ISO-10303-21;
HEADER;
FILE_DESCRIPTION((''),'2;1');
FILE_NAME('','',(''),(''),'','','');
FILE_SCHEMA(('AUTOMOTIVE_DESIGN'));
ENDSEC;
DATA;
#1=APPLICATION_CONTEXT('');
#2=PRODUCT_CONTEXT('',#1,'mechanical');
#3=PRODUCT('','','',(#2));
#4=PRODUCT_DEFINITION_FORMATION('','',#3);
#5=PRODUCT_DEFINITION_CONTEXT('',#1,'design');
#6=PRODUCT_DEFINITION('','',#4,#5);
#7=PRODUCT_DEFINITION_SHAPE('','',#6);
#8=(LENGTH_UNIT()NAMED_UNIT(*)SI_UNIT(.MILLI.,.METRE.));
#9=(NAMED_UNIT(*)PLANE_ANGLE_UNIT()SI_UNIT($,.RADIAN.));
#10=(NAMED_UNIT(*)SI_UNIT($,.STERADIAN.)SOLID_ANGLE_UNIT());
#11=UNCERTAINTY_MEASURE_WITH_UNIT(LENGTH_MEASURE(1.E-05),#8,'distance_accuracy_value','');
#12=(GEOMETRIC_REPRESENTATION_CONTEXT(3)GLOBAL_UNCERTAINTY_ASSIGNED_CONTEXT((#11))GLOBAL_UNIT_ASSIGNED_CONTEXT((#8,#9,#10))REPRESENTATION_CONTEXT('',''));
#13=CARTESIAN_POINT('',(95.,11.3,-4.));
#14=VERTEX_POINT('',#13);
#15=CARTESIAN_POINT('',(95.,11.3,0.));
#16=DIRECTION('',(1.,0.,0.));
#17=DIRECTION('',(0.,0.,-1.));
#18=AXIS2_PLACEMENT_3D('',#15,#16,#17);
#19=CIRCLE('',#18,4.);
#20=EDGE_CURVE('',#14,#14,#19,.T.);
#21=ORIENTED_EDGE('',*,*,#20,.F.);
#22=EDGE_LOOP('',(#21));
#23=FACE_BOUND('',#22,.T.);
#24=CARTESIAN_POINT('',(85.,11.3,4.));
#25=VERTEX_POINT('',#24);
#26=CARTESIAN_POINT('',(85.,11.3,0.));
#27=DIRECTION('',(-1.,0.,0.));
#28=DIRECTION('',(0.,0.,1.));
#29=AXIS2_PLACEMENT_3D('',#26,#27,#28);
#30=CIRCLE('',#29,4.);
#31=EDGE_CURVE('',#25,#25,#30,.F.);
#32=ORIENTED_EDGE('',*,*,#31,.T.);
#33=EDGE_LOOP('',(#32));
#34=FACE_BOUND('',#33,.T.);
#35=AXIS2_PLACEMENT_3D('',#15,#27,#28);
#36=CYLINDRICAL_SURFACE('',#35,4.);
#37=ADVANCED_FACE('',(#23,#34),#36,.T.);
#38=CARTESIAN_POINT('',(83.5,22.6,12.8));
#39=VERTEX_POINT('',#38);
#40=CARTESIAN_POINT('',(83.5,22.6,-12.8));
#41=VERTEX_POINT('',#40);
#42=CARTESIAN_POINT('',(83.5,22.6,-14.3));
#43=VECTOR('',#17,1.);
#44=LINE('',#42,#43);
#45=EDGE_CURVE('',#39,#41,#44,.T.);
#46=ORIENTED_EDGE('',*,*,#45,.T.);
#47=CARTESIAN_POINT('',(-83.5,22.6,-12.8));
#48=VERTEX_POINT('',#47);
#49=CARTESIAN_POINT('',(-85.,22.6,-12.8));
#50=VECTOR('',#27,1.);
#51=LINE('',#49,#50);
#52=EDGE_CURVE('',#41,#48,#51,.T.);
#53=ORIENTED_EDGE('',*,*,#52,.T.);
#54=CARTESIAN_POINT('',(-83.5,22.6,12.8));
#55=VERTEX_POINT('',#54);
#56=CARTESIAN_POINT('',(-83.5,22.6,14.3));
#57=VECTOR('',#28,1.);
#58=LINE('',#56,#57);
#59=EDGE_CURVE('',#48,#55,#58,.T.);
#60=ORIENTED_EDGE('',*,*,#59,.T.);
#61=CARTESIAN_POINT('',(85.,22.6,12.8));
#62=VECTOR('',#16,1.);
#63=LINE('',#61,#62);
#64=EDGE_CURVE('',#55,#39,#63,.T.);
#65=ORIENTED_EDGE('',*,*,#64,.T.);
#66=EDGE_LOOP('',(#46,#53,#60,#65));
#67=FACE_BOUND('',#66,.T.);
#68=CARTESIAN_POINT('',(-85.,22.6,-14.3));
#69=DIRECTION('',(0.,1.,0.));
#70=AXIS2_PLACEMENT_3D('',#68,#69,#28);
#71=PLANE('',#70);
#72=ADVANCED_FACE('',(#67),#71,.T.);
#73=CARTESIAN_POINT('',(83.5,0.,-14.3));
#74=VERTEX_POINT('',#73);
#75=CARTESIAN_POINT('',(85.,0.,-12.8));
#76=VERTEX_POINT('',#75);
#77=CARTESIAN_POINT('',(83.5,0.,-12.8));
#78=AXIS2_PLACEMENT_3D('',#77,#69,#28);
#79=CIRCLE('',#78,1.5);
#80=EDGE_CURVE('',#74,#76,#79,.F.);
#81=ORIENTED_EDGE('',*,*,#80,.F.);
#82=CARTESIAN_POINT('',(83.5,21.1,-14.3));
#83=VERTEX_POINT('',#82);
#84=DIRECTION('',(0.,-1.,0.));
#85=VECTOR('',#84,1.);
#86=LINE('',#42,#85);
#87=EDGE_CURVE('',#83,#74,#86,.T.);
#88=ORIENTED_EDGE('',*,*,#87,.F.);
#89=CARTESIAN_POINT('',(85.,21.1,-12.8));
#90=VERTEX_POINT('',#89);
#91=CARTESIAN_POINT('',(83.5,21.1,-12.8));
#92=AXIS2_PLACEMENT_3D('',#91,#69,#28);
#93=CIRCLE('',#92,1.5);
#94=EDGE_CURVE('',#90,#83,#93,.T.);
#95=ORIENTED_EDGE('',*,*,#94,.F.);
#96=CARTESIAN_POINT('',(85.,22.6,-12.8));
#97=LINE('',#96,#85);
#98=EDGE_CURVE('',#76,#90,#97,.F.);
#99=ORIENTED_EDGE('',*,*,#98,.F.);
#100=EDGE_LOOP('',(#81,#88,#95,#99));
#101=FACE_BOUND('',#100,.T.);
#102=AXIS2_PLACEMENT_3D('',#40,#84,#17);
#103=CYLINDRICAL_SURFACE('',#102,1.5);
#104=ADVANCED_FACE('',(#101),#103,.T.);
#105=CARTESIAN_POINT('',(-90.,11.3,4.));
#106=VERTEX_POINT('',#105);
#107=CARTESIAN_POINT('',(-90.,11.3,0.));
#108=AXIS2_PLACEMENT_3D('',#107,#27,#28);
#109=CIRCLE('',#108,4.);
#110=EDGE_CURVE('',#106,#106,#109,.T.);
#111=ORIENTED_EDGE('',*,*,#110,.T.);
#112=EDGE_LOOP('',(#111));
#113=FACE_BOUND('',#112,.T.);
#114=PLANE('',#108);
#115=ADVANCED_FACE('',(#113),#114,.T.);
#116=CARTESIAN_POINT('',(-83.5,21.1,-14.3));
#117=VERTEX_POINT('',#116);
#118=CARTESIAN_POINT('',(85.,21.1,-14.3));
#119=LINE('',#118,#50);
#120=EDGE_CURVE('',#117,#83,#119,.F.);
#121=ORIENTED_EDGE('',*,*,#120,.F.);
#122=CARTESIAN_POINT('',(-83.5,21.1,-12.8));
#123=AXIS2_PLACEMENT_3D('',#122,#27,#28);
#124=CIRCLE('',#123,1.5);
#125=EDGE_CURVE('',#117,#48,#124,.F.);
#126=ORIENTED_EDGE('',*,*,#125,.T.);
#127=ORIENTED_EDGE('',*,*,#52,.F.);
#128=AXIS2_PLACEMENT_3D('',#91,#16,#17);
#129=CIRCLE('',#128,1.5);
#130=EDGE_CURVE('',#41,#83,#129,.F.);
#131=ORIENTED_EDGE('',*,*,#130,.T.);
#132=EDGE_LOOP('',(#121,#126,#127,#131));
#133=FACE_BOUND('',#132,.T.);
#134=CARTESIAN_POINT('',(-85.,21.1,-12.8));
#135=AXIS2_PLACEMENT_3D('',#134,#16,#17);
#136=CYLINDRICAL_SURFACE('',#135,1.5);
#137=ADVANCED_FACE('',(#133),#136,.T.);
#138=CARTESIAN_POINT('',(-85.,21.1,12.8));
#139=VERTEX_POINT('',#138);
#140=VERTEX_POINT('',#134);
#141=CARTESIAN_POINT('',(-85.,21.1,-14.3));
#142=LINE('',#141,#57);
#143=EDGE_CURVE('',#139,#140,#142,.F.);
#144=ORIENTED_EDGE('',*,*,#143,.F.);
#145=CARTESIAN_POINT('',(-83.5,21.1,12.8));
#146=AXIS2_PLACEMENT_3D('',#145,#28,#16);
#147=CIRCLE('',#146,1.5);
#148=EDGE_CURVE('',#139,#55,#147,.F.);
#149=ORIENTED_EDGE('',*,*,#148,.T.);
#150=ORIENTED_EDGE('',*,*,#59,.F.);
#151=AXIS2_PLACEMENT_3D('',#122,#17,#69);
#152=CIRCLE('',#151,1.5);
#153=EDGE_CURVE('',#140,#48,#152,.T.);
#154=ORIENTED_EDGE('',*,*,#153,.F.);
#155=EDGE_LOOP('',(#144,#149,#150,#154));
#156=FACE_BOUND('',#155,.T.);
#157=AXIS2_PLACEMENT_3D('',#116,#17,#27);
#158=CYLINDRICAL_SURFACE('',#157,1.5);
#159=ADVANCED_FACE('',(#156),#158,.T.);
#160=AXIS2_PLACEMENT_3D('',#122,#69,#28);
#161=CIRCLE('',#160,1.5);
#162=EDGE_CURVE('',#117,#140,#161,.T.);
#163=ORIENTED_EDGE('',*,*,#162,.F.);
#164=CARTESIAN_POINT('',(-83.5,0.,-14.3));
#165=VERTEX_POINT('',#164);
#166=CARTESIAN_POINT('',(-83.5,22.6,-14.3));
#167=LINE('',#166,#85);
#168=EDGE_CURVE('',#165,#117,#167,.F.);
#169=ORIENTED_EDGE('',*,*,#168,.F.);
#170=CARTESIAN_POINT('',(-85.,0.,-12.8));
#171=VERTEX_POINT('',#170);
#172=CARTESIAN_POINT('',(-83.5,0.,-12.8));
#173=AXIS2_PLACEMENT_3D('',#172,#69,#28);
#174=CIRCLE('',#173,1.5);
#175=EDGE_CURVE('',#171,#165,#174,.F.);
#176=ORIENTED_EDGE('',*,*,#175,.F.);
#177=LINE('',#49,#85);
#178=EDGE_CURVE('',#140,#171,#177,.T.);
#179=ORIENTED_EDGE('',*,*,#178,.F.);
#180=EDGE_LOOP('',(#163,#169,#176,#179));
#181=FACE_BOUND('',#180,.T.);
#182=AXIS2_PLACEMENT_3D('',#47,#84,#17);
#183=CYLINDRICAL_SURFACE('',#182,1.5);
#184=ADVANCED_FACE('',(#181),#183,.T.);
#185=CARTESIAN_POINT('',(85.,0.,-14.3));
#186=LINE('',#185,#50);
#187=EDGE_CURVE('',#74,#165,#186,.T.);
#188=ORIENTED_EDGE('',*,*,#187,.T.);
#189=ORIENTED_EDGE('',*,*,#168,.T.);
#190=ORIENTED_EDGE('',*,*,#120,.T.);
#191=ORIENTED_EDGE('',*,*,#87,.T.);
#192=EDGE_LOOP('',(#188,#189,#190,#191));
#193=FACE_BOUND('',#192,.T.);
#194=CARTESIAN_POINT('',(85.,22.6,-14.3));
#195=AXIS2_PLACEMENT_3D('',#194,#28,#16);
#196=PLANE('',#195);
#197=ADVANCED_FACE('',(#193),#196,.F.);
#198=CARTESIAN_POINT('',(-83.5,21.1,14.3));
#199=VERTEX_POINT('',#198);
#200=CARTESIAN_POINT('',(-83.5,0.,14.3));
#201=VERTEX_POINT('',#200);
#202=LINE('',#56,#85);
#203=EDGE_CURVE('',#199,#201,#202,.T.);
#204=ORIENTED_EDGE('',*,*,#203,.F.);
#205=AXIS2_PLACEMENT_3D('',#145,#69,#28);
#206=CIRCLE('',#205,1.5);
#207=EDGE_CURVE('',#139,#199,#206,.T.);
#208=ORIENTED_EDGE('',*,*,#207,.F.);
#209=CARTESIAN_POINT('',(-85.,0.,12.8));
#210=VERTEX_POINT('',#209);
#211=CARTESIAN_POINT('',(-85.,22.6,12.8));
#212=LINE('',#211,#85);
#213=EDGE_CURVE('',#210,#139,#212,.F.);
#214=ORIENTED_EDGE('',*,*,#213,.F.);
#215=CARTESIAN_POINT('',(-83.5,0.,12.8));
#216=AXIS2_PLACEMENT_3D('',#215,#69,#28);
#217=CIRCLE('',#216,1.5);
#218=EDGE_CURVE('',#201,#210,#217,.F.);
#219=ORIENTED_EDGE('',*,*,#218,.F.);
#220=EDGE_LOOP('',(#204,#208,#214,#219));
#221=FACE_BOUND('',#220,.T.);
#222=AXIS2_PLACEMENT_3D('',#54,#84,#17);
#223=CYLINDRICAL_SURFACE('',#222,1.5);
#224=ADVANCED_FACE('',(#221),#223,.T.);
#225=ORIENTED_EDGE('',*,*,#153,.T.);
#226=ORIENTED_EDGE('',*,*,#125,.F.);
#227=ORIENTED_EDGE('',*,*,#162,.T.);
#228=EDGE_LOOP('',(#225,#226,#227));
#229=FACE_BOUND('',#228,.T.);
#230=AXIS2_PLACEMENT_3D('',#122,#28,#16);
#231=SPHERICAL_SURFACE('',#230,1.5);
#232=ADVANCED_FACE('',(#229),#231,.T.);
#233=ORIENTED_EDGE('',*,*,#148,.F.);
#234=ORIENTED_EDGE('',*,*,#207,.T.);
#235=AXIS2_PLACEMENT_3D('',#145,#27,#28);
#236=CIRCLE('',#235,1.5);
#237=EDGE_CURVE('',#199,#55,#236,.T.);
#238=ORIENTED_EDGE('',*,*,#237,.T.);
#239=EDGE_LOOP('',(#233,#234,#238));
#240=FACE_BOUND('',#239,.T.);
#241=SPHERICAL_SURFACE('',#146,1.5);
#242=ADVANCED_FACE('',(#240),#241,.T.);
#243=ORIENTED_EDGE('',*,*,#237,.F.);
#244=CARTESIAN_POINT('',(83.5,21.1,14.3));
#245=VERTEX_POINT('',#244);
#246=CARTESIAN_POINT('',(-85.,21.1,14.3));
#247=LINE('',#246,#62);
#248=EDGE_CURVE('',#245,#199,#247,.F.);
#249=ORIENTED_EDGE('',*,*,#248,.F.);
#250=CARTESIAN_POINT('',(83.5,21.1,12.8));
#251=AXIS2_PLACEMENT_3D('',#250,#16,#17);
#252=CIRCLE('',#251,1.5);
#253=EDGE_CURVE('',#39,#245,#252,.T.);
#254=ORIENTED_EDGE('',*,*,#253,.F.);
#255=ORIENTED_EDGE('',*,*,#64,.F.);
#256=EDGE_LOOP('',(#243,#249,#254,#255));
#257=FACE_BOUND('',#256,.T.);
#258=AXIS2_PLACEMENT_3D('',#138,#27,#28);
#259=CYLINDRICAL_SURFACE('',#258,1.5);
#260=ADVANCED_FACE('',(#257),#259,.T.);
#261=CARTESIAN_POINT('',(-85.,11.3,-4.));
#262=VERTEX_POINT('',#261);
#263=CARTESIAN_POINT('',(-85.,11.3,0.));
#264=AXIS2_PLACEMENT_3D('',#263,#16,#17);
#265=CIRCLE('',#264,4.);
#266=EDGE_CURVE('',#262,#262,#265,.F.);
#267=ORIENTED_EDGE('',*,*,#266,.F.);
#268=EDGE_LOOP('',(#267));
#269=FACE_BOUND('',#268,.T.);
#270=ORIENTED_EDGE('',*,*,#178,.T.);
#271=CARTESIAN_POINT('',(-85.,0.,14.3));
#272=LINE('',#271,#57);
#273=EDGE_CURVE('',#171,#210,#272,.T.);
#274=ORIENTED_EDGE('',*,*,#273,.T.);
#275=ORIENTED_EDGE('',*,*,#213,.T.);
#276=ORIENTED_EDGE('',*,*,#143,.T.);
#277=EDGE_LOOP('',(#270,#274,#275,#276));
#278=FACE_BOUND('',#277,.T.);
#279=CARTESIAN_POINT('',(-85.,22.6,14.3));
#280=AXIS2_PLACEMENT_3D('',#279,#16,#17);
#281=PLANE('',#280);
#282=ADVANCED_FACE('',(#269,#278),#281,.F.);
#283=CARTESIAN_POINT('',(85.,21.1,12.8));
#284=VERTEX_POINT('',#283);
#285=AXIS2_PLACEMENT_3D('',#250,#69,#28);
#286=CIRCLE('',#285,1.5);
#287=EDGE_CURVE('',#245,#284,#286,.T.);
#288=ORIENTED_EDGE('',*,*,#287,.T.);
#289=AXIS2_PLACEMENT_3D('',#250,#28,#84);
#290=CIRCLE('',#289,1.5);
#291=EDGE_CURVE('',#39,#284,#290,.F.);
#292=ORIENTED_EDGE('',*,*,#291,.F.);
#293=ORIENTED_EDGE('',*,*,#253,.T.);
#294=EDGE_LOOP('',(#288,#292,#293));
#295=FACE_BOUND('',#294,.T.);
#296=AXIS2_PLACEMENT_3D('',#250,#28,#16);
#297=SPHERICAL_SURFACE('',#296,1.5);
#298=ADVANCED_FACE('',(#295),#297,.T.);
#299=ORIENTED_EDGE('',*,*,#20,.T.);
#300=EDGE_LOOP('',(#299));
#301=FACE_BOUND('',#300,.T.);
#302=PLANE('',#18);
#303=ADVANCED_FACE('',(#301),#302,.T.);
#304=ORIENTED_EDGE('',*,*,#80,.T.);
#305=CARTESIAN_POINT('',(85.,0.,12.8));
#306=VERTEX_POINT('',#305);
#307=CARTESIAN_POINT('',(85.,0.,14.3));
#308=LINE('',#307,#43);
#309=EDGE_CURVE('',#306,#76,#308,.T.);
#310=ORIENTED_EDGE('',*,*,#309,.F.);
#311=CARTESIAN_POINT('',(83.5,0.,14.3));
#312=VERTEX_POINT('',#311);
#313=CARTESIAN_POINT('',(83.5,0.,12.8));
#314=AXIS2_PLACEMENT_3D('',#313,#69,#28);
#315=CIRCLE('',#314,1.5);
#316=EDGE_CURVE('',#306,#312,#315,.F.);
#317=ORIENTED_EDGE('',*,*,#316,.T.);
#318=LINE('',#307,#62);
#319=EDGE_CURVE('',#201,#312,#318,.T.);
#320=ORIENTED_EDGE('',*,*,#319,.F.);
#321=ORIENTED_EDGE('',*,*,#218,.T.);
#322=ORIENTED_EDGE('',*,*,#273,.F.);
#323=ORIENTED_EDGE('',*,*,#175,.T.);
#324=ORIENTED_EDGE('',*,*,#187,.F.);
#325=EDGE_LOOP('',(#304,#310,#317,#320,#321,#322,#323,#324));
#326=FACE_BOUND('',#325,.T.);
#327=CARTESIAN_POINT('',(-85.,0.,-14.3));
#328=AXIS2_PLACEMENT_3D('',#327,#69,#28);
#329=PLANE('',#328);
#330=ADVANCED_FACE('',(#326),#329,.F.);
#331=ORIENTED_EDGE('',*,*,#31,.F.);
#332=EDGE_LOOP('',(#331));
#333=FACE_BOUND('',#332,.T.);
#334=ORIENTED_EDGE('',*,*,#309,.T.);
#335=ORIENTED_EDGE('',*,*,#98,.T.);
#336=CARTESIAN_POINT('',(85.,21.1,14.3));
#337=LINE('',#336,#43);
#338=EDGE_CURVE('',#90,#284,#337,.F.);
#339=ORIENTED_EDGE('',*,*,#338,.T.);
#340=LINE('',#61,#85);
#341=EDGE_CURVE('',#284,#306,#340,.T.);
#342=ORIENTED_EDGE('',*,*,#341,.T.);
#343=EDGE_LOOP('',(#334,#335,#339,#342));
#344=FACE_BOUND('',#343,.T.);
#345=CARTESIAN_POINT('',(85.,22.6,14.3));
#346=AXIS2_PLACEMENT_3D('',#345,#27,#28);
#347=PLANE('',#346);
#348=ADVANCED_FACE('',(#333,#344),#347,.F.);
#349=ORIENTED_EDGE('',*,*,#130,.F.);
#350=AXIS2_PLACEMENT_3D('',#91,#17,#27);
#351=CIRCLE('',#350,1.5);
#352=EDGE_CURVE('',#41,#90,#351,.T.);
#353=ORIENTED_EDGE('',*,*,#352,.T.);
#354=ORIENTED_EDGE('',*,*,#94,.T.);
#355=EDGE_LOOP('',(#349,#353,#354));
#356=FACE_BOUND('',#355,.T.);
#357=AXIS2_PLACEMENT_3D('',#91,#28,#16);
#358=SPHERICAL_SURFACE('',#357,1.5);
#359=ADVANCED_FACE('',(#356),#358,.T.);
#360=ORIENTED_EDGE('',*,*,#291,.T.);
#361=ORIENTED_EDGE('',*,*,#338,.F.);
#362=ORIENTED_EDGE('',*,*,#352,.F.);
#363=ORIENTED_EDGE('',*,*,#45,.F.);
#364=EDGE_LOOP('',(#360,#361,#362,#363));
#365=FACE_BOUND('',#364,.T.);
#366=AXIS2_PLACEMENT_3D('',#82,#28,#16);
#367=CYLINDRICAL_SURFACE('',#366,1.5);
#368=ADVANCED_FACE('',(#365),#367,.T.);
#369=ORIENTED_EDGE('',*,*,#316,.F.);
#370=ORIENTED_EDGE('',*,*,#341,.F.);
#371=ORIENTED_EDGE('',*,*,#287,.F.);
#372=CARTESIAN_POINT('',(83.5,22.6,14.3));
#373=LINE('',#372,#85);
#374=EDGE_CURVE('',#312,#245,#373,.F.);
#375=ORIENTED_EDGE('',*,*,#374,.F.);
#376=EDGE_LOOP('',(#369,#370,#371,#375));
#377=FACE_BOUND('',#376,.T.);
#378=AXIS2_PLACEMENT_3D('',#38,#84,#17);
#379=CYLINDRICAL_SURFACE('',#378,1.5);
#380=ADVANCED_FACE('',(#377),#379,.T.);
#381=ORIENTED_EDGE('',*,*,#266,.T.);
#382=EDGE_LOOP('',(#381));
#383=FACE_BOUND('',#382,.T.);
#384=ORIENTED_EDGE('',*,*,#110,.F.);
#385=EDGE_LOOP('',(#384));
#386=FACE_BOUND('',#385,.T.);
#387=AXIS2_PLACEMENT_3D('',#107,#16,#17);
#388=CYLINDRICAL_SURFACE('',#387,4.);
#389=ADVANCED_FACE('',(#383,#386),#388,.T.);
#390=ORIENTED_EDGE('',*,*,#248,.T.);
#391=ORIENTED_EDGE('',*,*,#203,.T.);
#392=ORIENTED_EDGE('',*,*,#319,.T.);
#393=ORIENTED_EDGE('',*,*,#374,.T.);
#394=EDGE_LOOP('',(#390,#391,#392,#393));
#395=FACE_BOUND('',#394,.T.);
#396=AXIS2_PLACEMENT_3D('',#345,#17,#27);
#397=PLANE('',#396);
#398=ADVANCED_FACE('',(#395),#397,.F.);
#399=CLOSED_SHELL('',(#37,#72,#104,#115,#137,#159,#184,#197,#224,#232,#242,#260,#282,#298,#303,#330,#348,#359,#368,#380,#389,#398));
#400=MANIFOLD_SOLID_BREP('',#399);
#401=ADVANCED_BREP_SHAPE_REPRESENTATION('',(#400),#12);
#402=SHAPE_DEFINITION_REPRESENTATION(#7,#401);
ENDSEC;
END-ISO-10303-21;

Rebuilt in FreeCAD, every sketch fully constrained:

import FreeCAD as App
import Part
import Sketcher
from FreeCAD import Vector
Q = App.Units.Quantity


def edges_at(feature, points):
    """Names of the edges that pass closest to the given points."""
    edges = feature.Shape.Edges
    near = lambda p: min(range(len(edges)), key=lambda i: edges[i].distToShape(Part.Vertex(*p))[0])
    return sorted({f"Edge{near(p) + 1}" for p in points})


def add_polygon(sketch, points):
    """Adds a closed chain of lines whose ends are joined by coincident constraints."""
    first, n = sketch.GeometryCount, len(points)
    for a, b in zip(points, points[1:] + points[:1]):
        sketch.addGeometry(Part.LineSegment(App.Vector(*a, 0), App.Vector(*b, 0)), False)
    for i in range(n):
        sketch.addConstraint(Sketcher.Constraint("Coincident", first + i, 2, first + (i + 1) % n, 1))

doc = App.newDocument("Part")
body = doc.addObject("PartDesign::Body", "Body")

# Sketch on XZ plane
sketch1 = body.newObject("Sketcher::SketchObject", "Sketch")
sketch1.AttachmentSupport = (doc.getObject("XZ_Plane"), [""])
sketch1.MapMode = "FlatFace"
add_polygon(sketch1, [(-85, -14), (-85, 14), (85, 14), (85, -14)])  # lines 0-3
sketch1.addConstraint([
    Sketcher.Constraint("Vertical", 0),
    Sketcher.Constraint("Horizontal", 1),
    Sketcher.Constraint("Vertical", 2),
    Sketcher.Constraint("Horizontal", 3),
    Sketcher.Constraint("Symmetric", 0, 2, 2, 2, -1, 1),
    Sketcher.Constraint("DistanceX", 1, 1, 1, 2, Q("170 mm")),
    Sketcher.Constraint("DistanceY", 0, 1, 0, 2, Q("28.6 mm")),
])
pad1 = body.newObject("PartDesign::Pad", "Pad")
pad1.Profile = sketch1
pad1.Length = 22.6
pad1.Reversed = True

# Sketch on YZ plane
sketch2 = body.newObject("Sketcher::SketchObject", "Sketch001")
sketch2.AttachmentSupport = (doc.getObject("YZ_Plane"), [""])
sketch2.MapMode = "FlatFace"
sketch2.AttachmentOffset = App.Placement(Vector(0, 0, 85), App.Rotation())
sketch2.addGeometry(Part.Circle(Vector(11.3, 0, 0), Vector(0, 0, 1), 4), False)
sketch2.addConstraint([
    Sketcher.Constraint("PointOnObject", 0, 3, -1),
    Sketcher.Constraint("Diameter", 0, Q("8 mm")),
    Sketcher.Constraint("DistanceX", -1, 1, 0, 3, Q("11.3 mm")),
])
pad2 = body.newObject("PartDesign::Pad", "Pad001")
pad2.Profile = sketch2
pad2.Length = 10

# Sketch on YZ plane
sketch3 = body.newObject("Sketcher::SketchObject", "Sketch002")
sketch3.AttachmentSupport = (doc.getObject("YZ_Plane"), [""])
sketch3.MapMode = "FlatFace"
sketch3.AttachmentOffset = App.Placement(Vector(0, 0, -85), App.Rotation())
sketch3.addGeometry(Part.Circle(Vector(11.3, 0, 0), Vector(0, 0, 1), 4), False)
sketch3.addConstraint([
    Sketcher.Constraint("PointOnObject", 0, 3, -1),
    Sketcher.Constraint("Diameter", 0, Q("8 mm")),
    Sketcher.Constraint("DistanceX", -1, 1, 0, 3, Q("11.3 mm")),
])
pad3 = body.newObject("PartDesign::Pad", "Pad002")
pad3.Profile = sketch3
pad3.Length = 5
pad3.Reversed = True
doc.recompute()

fillet = body.newObject("PartDesign::Fillet", "Fillet")
fillet.Base = (pad3, edges_at(pad3, [
    (85, 22.6, 0),
    (0, 22.6, -14.3),
    (-85, 22.6, 0),
    (0, 22.6, 14.3),
    (-85, 11.3, -14.3),
    (85, 11.3, -14.3),
    (85, 11.3, 14.3),
    (-85, 11.3, 14.3),
]))
fillet.Radius = 1.5

doc.recompute()
